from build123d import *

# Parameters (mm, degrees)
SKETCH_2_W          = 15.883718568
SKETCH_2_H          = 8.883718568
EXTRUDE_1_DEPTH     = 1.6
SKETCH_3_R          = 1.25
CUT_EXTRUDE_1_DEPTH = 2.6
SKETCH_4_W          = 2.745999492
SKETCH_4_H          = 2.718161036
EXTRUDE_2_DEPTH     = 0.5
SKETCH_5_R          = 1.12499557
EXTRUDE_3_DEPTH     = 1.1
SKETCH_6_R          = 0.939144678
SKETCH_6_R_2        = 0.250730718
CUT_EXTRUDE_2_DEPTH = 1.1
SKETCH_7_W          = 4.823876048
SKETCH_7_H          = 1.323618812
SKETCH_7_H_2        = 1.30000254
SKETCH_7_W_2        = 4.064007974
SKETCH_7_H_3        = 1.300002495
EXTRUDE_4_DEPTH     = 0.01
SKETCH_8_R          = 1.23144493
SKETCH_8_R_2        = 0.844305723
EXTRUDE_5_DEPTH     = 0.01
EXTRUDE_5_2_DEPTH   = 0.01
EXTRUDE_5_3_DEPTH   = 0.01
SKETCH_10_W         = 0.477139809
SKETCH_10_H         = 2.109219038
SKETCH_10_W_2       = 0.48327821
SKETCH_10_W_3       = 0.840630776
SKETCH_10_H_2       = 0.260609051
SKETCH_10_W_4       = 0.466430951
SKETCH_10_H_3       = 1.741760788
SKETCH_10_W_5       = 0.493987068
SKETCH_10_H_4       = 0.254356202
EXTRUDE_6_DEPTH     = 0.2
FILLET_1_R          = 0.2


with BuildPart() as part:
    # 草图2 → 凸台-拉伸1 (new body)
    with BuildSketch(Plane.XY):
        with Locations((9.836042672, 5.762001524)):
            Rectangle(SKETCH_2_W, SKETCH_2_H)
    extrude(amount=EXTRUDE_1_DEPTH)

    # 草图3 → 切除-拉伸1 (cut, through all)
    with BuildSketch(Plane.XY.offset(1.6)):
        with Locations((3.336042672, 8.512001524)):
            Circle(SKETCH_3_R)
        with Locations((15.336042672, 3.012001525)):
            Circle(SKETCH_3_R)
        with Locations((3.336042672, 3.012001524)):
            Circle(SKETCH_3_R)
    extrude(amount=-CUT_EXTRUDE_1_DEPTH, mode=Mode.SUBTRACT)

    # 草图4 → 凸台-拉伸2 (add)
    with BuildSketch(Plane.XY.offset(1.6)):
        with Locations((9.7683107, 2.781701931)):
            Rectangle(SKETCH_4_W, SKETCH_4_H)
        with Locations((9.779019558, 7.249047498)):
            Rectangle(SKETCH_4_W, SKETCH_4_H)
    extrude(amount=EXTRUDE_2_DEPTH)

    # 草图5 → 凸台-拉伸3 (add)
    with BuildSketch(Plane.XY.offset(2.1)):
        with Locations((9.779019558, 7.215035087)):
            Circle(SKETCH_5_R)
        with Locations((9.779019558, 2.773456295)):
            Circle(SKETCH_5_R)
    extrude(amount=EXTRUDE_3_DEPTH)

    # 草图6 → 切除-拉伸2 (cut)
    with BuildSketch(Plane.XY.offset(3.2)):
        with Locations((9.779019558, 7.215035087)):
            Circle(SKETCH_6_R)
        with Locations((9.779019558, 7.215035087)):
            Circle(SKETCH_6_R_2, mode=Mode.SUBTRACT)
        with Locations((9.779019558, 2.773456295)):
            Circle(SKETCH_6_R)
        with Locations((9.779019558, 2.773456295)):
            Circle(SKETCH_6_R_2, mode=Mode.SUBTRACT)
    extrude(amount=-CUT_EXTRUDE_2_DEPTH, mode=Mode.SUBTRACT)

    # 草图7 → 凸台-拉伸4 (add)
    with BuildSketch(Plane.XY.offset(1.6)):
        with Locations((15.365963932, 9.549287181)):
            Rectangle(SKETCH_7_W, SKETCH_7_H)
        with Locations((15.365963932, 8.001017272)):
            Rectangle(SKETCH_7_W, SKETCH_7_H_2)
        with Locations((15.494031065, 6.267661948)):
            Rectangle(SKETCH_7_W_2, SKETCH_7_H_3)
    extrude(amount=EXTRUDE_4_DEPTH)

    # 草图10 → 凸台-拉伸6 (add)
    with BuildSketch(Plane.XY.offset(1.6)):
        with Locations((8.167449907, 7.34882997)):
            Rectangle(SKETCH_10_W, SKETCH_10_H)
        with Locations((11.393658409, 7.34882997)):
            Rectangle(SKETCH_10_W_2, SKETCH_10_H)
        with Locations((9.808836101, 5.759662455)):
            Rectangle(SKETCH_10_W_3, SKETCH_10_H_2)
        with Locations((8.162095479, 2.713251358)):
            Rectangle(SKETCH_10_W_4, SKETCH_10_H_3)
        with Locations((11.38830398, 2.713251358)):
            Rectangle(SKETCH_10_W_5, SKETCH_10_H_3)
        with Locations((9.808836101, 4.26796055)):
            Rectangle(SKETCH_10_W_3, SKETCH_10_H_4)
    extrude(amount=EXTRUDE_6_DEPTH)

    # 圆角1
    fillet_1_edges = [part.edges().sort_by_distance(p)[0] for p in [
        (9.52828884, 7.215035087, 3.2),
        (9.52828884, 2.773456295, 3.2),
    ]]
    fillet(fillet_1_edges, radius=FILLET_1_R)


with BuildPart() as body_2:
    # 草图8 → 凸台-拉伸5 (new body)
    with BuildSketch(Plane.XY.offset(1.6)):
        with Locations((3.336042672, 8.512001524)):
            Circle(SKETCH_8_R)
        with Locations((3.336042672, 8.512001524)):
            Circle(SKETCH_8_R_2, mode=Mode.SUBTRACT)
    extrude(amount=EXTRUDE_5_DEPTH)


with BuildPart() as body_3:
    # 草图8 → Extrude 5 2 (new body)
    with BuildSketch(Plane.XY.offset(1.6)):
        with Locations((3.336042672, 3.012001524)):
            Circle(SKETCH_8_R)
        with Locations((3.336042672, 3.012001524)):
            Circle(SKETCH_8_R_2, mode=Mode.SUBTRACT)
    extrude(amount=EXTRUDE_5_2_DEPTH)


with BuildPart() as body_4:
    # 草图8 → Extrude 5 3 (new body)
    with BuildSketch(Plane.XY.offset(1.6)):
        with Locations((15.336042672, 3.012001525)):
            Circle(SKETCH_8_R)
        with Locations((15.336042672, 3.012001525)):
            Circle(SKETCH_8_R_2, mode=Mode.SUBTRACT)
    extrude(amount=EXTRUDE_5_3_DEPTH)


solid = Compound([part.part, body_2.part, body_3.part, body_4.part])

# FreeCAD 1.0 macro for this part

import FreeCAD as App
import Part
import Sketcher
from FreeCAD import Vector
Q = App.Units.Quantity


def edges_at(feature, points):
    """Names of the edges that pass closest to the given points."""
    edges = feature.Shape.Edges
    near = lambda p: min(range(len(edges)), key=lambda i: edges[i].distToShape(Part.Vertex(*p))[0])
    return sorted({f"Edge{near(p) + 1}" for p in points})

doc = App.newDocument("Part")
params = doc.addObject("Spreadsheet::Sheet", "Params")
for row, (alias, value) in enumerate([
    ("pad1_length", "1.6 mm"),
    ("sketch2_diameter", "2.5 mm"),
    ("pad2_length", "0.5 mm"),
    ("pad3_length", "1.1 mm"),
    ("pocket2_length", "1.1 mm"),
    ("pad4_length", "0.01 mm"),
    ("pad5_length", "0.2 mm"),
    ("fillet_radius", "0.2 mm"),
    ("pad6_length", "0.01 mm"),
    ("pad7_length", "0.01 mm"),
    ("pad8_length", "0.01 mm"),
], start=1):
    params.set(f"A{row}", alias)
    params.set(f"B{row}", "=" + value)
    params.setAlias(f"B{row}", alias)

body = doc.addObject("PartDesign::Body", "Body")

# Sketch on XY plane
sketch1 = doc.addObject("Sketcher::SketchObject", "Sketch")
body.addObject(sketch1)
sketch1.AttachmentSupport = (doc.XY_Plane, [""])
sketch1.MapMode = "FlatFace"
sketch1.addGeometry([
    Part.LineSegment(Vector(2, 10, 0), Vector(2, 1, 0)),
    Part.LineSegment(Vector(2, 1, 0), Vector(18, 1, 0)),
    Part.LineSegment(Vector(18, 1, 0), Vector(18, 10, 0)),
    Part.LineSegment(Vector(18, 10, 0), Vector(2, 10, 0)),
], False)
sketch1.addConstraint([
    Sketcher.Constraint("Coincident", 0, 2, 1, 1),
    Sketcher.Constraint("Coincident", 1, 2, 2, 1),
    Sketcher.Constraint("Coincident", 2, 2, 3, 1),
    Sketcher.Constraint("Coincident", 3, 2, 0, 1),
    Sketcher.Constraint("Vertical", 0),
    Sketcher.Constraint("Horizontal", 1),
    Sketcher.Constraint("Vertical", 2),
    Sketcher.Constraint("Horizontal", 3),
    Sketcher.Constraint("DistanceX", 1, 1, 1, 2, Q("15.883719 mm")),
    Sketcher.Constraint("DistanceY", 0, 2, 0, 1, Q("8.883719 mm")),
    Sketcher.Constraint("DistanceX", -1, 1, 1, 2, Q("17.777902 mm")),
    Sketcher.Constraint("DistanceY", -1, 1, 2, 2, Q("10.203861 mm")),
])
pad1 = doc.addObject("PartDesign::Pad", "Pad")
body.addObject(pad1)
pad1.Profile = sketch1
pad1.setExpression("Length", "Params.pad1_length")

# Sketch on XY plane
sketch2 = doc.addObject("Sketcher::SketchObject", "Sketch001")
body.addObject(sketch2)
sketch2.AttachmentSupport = (doc.XY_Plane, [""])
sketch2.MapMode = "FlatFace"
sketch2.AttachmentOffset = App.Placement(Vector(0, 0, 1.6), App.Rotation())
sketch2.addGeometry([
    Part.Circle(Vector(3.3, 8.5, 0), Vector(0, 0, 1), 1.2),
    Part.Circle(Vector(15.3, 3, 0), Vector(0, 0, 1), 1.2),
    Part.Circle(Vector(3.3, 3, 0), Vector(0, 0, 1), 1.2),
], False)
sketch2.addConstraint([
    Sketcher.Constraint("Equal", 0, 1),
    Sketcher.Constraint("Equal", 1, 2),
    Sketcher.Constraint("Horizontal", 1, 3, 2, 3),
    Sketcher.Constraint("Vertical", 0, 3, 2, 3),
    Sketcher.Constraint("Diameter", 0, Q("2.5 mm")),
    Sketcher.Constraint("DistanceX", 0, 3, 1, 3, Q("12 mm")),
    Sketcher.Constraint("DistanceY", 1, 3, 0, 3, Q("5.5 mm")),
    Sketcher.Constraint("DistanceY", -1, 1, 0, 3, Q("8.512002 mm")),
    Sketcher.Constraint("DistanceX", -1, 1, 0, 3, Q("3.336043 mm")),
])
sketch2.setExpression("Constraints[4]", "Params.sketch2_diameter")
pocket1 = doc.addObject("PartDesign::Pocket", "Pocket")
body.addObject(pocket1)
pocket1.Profile = sketch2
pocket1.Type = "ThroughAll"

# Sketch on XY plane
sketch3 = doc.addObject("Sketcher::SketchObject", "Sketch002")
body.addObject(sketch3)
sketch3.AttachmentSupport = (doc.XY_Plane, [""])
sketch3.MapMode = "FlatFace"
sketch3.AttachmentOffset = App.Placement(Vector(0, 0, 1.6), App.Rotation())
sketch3.addGeometry([
    Part.LineSegment(Vector(8.4, 4.1, 0), Vector(8.4, 1.4, 0)),  # 0
    Part.LineSegment(Vector(8.4, 1.4, 0), Vector(11.1, 1.4, 0)),  # 1
    Part.LineSegment(Vector(11.1, 1.4, 0), Vector(11.1, 4.1, 0)),  # 2
    Part.LineSegment(Vector(11.1, 4.1, 0), Vector(8.4, 4.1, 0)),  # 3
    Part.LineSegment(Vector(8.4, 8.6, 0), Vector(8.4, 5.9, 0)),  # 4
    Part.LineSegment(Vector(8.4, 5.9, 0), Vector(11.2, 5.9, 0)),  # 5
    Part.LineSegment(Vector(11.2, 5.9, 0), Vector(11.2, 8.6, 0)),  # 6
    Part.LineSegment(Vector(11.2, 8.6, 0), Vector(8.4, 8.6, 0)),  # 7
], False)
sketch3.addConstraint([
    Sketcher.Constraint("Coincident", 0, 2, 1, 1),
    Sketcher.Constraint("Coincident", 1, 2, 2, 1),
    Sketcher.Constraint("Coincident", 2, 2, 3, 1),
    Sketcher.Constraint("Coincident", 3, 2, 0, 1),
    Sketcher.Constraint("Coincident", 4, 2, 5, 1),
    Sketcher.Constraint("Coincident", 5, 2, 6, 1),
    Sketcher.Constraint("Coincident", 6, 2, 7, 1),
    Sketcher.Constraint("Coincident", 7, 2, 4, 1),
    Sketcher.Constraint("Vertical", 0),
    Sketcher.Constraint("Horizontal", 1),
    Sketcher.Constraint("Vertical", 2),
    Sketcher.Constraint("Horizontal", 3),
    Sketcher.Constraint("Vertical", 4),
    Sketcher.Constraint("Horizontal", 5),
    Sketcher.Constraint("Vertical", 6),
    Sketcher.Constraint("Horizontal", 7),
    Sketcher.Constraint("Equal", 3, 5),
    Sketcher.Constraint("Equal", 2, 4),
    Sketcher.Constraint("DistanceX", 1, 1, 1, 2, Q("2.745999 mm")),
    Sketcher.Constraint("DistanceY", 0, 2, 0, 1, Q("2.718161 mm")),
    Sketcher.Constraint("DistanceX", -1, 1, 0, 2, Q("8.395311 mm")),
    Sketcher.Constraint("DistanceY", -1, 1, 0, 2, Q("1.422621 mm")),
    Sketcher.Constraint("DistanceX", -1, 1, 4, 2, Q("8.40602 mm")),
    Sketcher.Constraint("DistanceY", -1, 1, 6, 2, Q("8.608128 mm")),
])
pad2 = doc.addObject("PartDesign::Pad", "Pad001")
body.addObject(pad2)
pad2.Profile = sketch3
pad2.setExpression("Length", "Params.pad2_length")

# Sketch on XY plane
sketch4 = doc.addObject("Sketcher::SketchObject", "Sketch003")
body.addObject(sketch4)
sketch4.AttachmentSupport = (doc.XY_Plane, [""])
sketch4.MapMode = "FlatFace"
sketch4.AttachmentOffset = App.Placement(Vector(0, 0, 2.1), App.Rotation())
sketch4.addGeometry([
    Part.Circle(Vector(9.8, 7.2, 0), Vector(0, 0, 1), 1.1),
    Part.Circle(Vector(9.8, 2.8, 0), Vector(0, 0, 1), 1.1),
], False)
sketch4.addConstraint([
    Sketcher.Constraint("Equal", 0, 1),
    Sketcher.Constraint("Vertical", 0, 3, 1, 3),
    Sketcher.Constraint("Diameter", 0, Q("2.249991 mm")),
    Sketcher.Constraint("DistanceX", -1, 1, 0, 3, Q("9.77902 mm")),
    Sketcher.Constraint("DistanceY", 1, 3, 0, 3, Q("4.441579 mm")),
    Sketcher.Constraint("DistanceY", -1, 1, 0, 3, Q("7.215035 mm")),
])
pad3 = doc.addObject("PartDesign::Pad", "Pad002")
body.addObject(pad3)
pad3.Profile = sketch4
pad3.setExpression("Length", "Params.pad3_length")

# Sketch on XY plane
sketch5 = doc.addObject("Sketcher::SketchObject", "Sketch004")
body.addObject(sketch5)
sketch5.AttachmentSupport = (doc.XY_Plane, [""])
sketch5.MapMode = "FlatFace"
sketch5.AttachmentOffset = App.Placement(Vector(0, 0, 3.2), App.Rotation())
sketch5.addGeometry([
    Part.Circle(Vector(9.78, 7.22, 0), Vector(0, 0, 1), 0.94),
    Part.Circle(Vector(9.78, 7.22, 0), Vector(0, 0, 1), 0.25),
    Part.Circle(Vector(9.78, 2.77, 0), Vector(0, 0, 1), 0.94),
    Part.Circle(Vector(9.78, 2.77, 0), Vector(0, 0, 1), 0.25),
], False)
sketch5.addConstraint([
    Sketcher.Constraint("Coincident", 1, 3, 0, 3),
    Sketcher.Constraint("Coincident", 3, 3, 2, 3),
    Sketcher.Constraint("Equal", 0, 2),
    Sketcher.Constraint("Equal", 1, 3),
    Sketcher.Constraint("Vertical", 1, 3, 2, 3),
    Sketcher.Constraint("Diameter", 0, Q("1.878289 mm")),
    Sketcher.Constraint("Diameter", 1, Q("0.501461 mm")),
    Sketcher.Constraint("DistanceX", -1, 1, 0, 3, Q("9.77902 mm")),
    Sketcher.Constraint("DistanceY", 2, 3, 0, 3, Q("4.441579 mm")),
    Sketcher.Constraint("DistanceY", -1, 1, 0, 3, Q("7.215035 mm")),
])
pocket2 = doc.addObject("PartDesign::Pocket", "Pocket001")
body.addObject(pocket2)
pocket2.Profile = sketch5
pocket2.setExpression("Length", "Params.pocket2_length")

# Sketch on XY plane
sketch6 = doc.addObject("Sketcher::SketchObject", "Sketch005")
body.addObject(sketch6)
sketch6.AttachmentSupport = (doc.XY_Plane, [""])
sketch6.MapMode = "FlatFace"
sketch6.AttachmentOffset = App.Placement(Vector(0, 0, 1.6), App.Rotation())
sketch6.addGeometry([
    Part.LineSegment(Vector(13, 10.2, 0), Vector(13, 8.9, 0)),  # 0
    Part.LineSegment(Vector(13, 8.9, 0), Vector(17.8, 8.9, 0)),  # 1
    Part.LineSegment(Vector(17.8, 8.9, 0), Vector(17.8, 10.2, 0)),  # 2
    Part.LineSegment(Vector(17.8, 10.2, 0), Vector(13, 10.2, 0)),  # 3
    Part.LineSegment(Vector(13, 8.7, 0), Vector(13, 7.4, 0)),  # 4
    Part.LineSegment(Vector(13, 7.4, 0), Vector(17.8, 7.4, 0)),  # 5
    Part.LineSegment(Vector(17.8, 7.4, 0), Vector(17.8, 8.7, 0)),  # 6
    Part.LineSegment(Vector(17.8, 8.7, 0), Vector(13, 8.7, 0)),  # 7
    Part.LineSegment(Vector(13.5, 6.9, 0), Vector(13.5, 5.6, 0)),  # 8
    Part.LineSegment(Vector(13.5, 5.6, 0), Vector(17.5, 5.6, 0)),  # 9
    Part.LineSegment(Vector(17.5, 5.6, 0), Vector(17.5, 6.9, 0)),  # 10
    Part.LineSegment(Vector(17.5, 6.9, 0), Vector(13.5, 6.9, 0)),  # 11
], False)
sketch6.addConstraint([
    Sketcher.Constraint("Coincident", 0, 2, 1, 1),
    Sketcher.Constraint("Coincident", 1, 2, 2, 1),
    Sketcher.Constraint("Coincident", 2, 2, 3, 1),
    Sketcher.Constraint("Coincident", 3, 2, 0, 1),
    Sketcher.Constraint("Coincident", 4, 2, 5, 1),
    Sketcher.Constraint("Coincident", 5, 2, 6, 1),
    Sketcher.Constraint("Coincident", 6, 2, 7, 1),
    Sketcher.Constraint("Coincident", 7, 2, 4, 1),
    Sketcher.Constraint("Coincident", 8, 2, 9, 1),
    Sketcher.Constraint("Coincident", 9, 2, 10, 1),
    Sketcher.Constraint("Coincident", 10, 2, 11, 1),
    Sketcher.Constraint("Coincident", 11, 2, 8, 1),
    Sketcher.Constraint("Vertical", 0),
    Sketcher.Constraint("Horizontal", 1),
    Sketcher.Constraint("Vertical", 2),
    Sketcher.Constraint("Horizontal", 3),
    Sketcher.Constraint("Vertical", 4),
    Sketcher.Constraint("Horizontal", 5),
    Sketcher.Constraint("Vertical", 6),
    Sketcher.Constraint("Horizontal", 7),
    Sketcher.Constraint("Vertical", 8),
    Sketcher.Constraint("Horizontal", 9),
    Sketcher.Constraint("Vertical", 10),
    Sketcher.Constraint("Horizontal", 11),
    Sketcher.Constraint("Vertical", 3, 2, 4, 2),
    Sketcher.Constraint("Vertical", 2, 2, 5, 2),
    Sketcher.Constraint("Equal", 6, 8),
    Sketcher.Constraint("DistanceX", 4, 2, 8, 2, Q("0.508001 mm")),
    Sketcher.Constraint("DistanceY", 0, 2, 0, 1, Q("1.323619 mm")),
    Sketcher.Constraint("DistanceX", -1, 1, 1, 2, Q("17.777902 mm")),
    Sketcher.Constraint("DistanceX", 1, 1, 1, 2, Q("4.823876 mm")),
    Sketcher.Constraint("DistanceX", 9, 1, 9, 2, Q("4.064008 mm")),
    Sketcher.Constraint("DistanceY", 4, 2, 4, 1, Q("1.300003 mm")),
    Sketcher.Constraint("DistanceY", -1, 1, 6, 2, Q("8.651019 mm")),
    Sketcher.Constraint("DistanceY", -1, 1, 8, 2, Q("5.617661 mm")),
    Sketcher.Constraint("DistanceY", 4, 2, 0, 2, Q("1.536462 mm")),
])
pad4 = doc.addObject("PartDesign::Pad", "Pad003")
body.addObject(pad4)
pad4.Profile = sketch6
pad4.setExpression("Length", "Params.pad4_length")

# Sketch on XY plane
sketch7 = doc.addObject("Sketcher::SketchObject", "Sketch006")
body.addObject(sketch7)
sketch7.AttachmentSupport = (doc.XY_Plane, [""])
sketch7.MapMode = "FlatFace"
sketch7.AttachmentOffset = App.Placement(Vector(0, 0, 1.6), App.Rotation())
sketch7.addGeometry([
    Part.LineSegment(Vector(7.93, 8.4, 0), Vector(7.93, 6.29, 0)),  # 0
    Part.LineSegment(Vector(7.93, 6.29, 0), Vector(8.41, 6.29, 0)),  # 1
    Part.LineSegment(Vector(8.41, 6.29, 0), Vector(8.41, 8.4, 0)),  # 2
    Part.LineSegment(Vector(8.41, 8.4, 0), Vector(7.93, 8.4, 0)),  # 3
    Part.LineSegment(Vector(11.15, 8.4, 0), Vector(11.15, 6.29, 0)),  # 4
    Part.LineSegment(Vector(11.15, 6.29, 0), Vector(11.64, 6.29, 0)),  # 5
    Part.LineSegment(Vector(11.64, 6.29, 0), Vector(11.64, 8.4, 0)),  # 6
    Part.LineSegment(Vector(11.64, 8.4, 0), Vector(11.15, 8.4, 0)),  # 7
    Part.LineSegment(Vector(9.39, 5.89, 0), Vector(9.39, 5.63, 0)),  # 8
    Part.LineSegment(Vector(9.39, 5.63, 0), Vector(10.23, 5.63, 0)),  # 9
    Part.LineSegment(Vector(10.23, 5.63, 0), Vector(10.23, 5.89, 0)),  # 10
    Part.LineSegment(Vector(10.23, 5.89, 0), Vector(9.39, 5.89, 0)),  # 11
    Part.LineSegment(Vector(7.93, 3.58, 0), Vector(7.93, 1.84, 0)),  # 12
    Part.LineSegment(Vector(7.93, 1.84, 0), Vector(8.4, 1.84, 0)),  # 13
    Part.LineSegment(Vector(8.4, 1.84, 0), Vector(8.4, 3.58, 0)),  # 14
    Part.LineSegment(Vector(8.4, 3.58, 0), Vector(7.93, 3.58, 0)),  # 15
    Part.LineSegment(Vector(11.14, 3.58, 0), Vector(11.14, 1.84, 0)),  # 16
    Part.LineSegment(Vector(11.14, 1.84, 0), Vector(11.64, 1.84, 0)),  # 17
    Part.LineSegment(Vector(11.64, 1.84, 0), Vector(11.64, 3.58, 0)),  # 18
    Part.LineSegment(Vector(11.64, 3.58, 0), Vector(11.14, 3.58, 0)),  # 19
    Part.LineSegment(Vector(9.39, 4.4, 0), Vector(9.39, 4.14, 0)),  # 20
    Part.LineSegment(Vector(9.39, 4.14, 0), Vector(10.23, 4.14, 0)),  # 21
    Part.LineSegment(Vector(10.23, 4.14, 0), Vector(10.23, 4.4, 0)),  # 22
    Part.LineSegment(Vector(10.23, 4.4, 0), Vector(9.39, 4.4, 0)),  # 23
], False)
sketch7.addConstraint([
    Sketcher.Constraint("Coincident", 0, 2, 1, 1),
    Sketcher.Constraint("Coincident", 1, 2, 2, 1),
    Sketcher.Constraint("Coincident", 2, 2, 3, 1),
    Sketcher.Constraint("Coincident", 3, 2, 0, 1),
    Sketcher.Constraint("Coincident", 4, 2, 5, 1),
    Sketcher.Constraint("Coincident", 5, 2, 6, 1),
    Sketcher.Constraint("Coincident", 6, 2, 7, 1),
    Sketcher.Constraint("Coincident", 7, 2, 4, 1),
    Sketcher.Constraint("Coincident", 8, 2, 9, 1),
    Sketcher.Constraint("Coincident", 9, 2, 10, 1),
    Sketcher.Constraint("Coincident", 10, 2, 11, 1),
    Sketcher.Constraint("Coincident", 11, 2, 8, 1),
    Sketcher.Constraint("Coincident", 12, 2, 13, 1),
    Sketcher.Constraint("Coincident", 13, 2, 14, 1),
    Sketcher.Constraint("Coincident", 14, 2, 15, 1),
    Sketcher.Constraint("Coincident", 15, 2, 12, 1),
    Sketcher.Constraint("Coincident", 16, 2, 17, 1),
    Sketcher.Constraint("Coincident", 17, 2, 18, 1),
    Sketcher.Constraint("Coincident", 18, 2, 19, 1),
    Sketcher.Constraint("Coincident", 19, 2, 16, 1),
    Sketcher.Constraint("Coincident", 20, 2, 21, 1),
    Sketcher.Constraint("Coincident", 21, 2, 22, 1),
    Sketcher.Constraint("Coincident", 22, 2, 23, 1),
    Sketcher.Constraint("Coincident", 23, 2, 20, 1),
    Sketcher.Constraint("Vertical", 0),
    Sketcher.Constraint("Horizontal", 1),
    Sketcher.Constraint("Vertical", 2),
    Sketcher.Constraint("Horizontal", 3),
    Sketcher.Constraint("Vertical", 4),
    Sketcher.Constraint("Horizontal", 5),
    Sketcher.Constraint("Vertical", 6),
    Sketcher.Constraint("Horizontal", 7),
    Sketcher.Constraint("Vertical", 8),
    Sketcher.Constraint("Horizontal", 9),
    Sketcher.Constraint("Vertical", 10),
    Sketcher.Constraint("Horizontal", 11),
    Sketcher.Constraint("Vertical", 12),
    Sketcher.Constraint("Horizontal", 13),
    Sketcher.Constraint("Vertical", 14),
    Sketcher.Constraint("Horizontal", 15),
    Sketcher.Constraint("Vertical", 16),
    Sketcher.Constraint("Horizontal", 17),
    Sketcher.Constraint("Vertical", 18),
    Sketcher.Constraint("Horizontal", 19),
    Sketcher.Constraint("Vertical", 20),
    Sketcher.Constraint("Horizontal", 21),
    Sketcher.Constraint("Vertical", 22),
    Sketcher.Constraint("Horizontal", 23),
    Sketcher.Constraint("Horizontal", 1, 2, 4, 2),
    Sketcher.Constraint("Horizontal", 3, 2, 6, 2),
    Sketcher.Constraint("Horizontal", 13, 2, 16, 2),
    Sketcher.Constraint("Horizontal", 15, 2, 18, 2),
    Sketcher.Constraint("Vertical", 3, 2, 12, 2),
    Sketcher.Constraint("Vertical", 6, 2, 17, 2),
    Sketcher.Constraint("Vertical", 11, 2, 20, 2),
    Sketcher.Constraint("Vertical", 10, 2, 21, 2),
    Sketcher.Constraint("DistanceX", 1, 2, 4, 2, Q("2.745999 mm")),
    Sketcher.Constraint("DistanceX", 13, 2, 16, 2, Q("2.745999 mm")),
    Sketcher.Constraint("DistanceX", 1, 1, 1, 2, Q("0.47714 mm")),
    Sketcher.Constraint("DistanceX", 5, 1, 5, 2, Q("0.483278 mm")),
    Sketcher.Constraint("DistanceX", 9, 1, 9, 2, Q("0.840631 mm")),
    Sketcher.Constraint("DistanceX", 13, 1, 13, 2, Q("0.466431 mm")),
    Sketcher.Constraint("DistanceY", 0, 2, 0, 1, Q("2.109219 mm")),
    Sketcher.Constraint("DistanceY", 8, 2, 8, 1, Q("0.260609 mm")),
    Sketcher.Constraint("DistanceY", 12, 2, 12, 1, Q("1.741761 mm")),
    Sketcher.Constraint("DistanceX", 1, 2, 8, 2, Q("0.982501 mm")),
    Sketcher.Constraint("DistanceY", 20, 2, 20, 1, Q("0.254356 mm")),
    Sketcher.Constraint("DistanceX", -1, 1, 0, 2, Q("7.92888 mm")),
    Sketcher.Constraint("DistanceY", -1, 1, 0, 2, Q("6.29422 mm")),
    Sketcher.Constraint("DistanceY", -1, 1, 12, 2, Q("1.842371 mm")),
    Sketcher.Constraint("DistanceY", -1, 1, 22, 2, Q("4.395139 mm")),
    Sketcher.Constraint("DistanceY", 8, 2, 2, 2, Q("2.774082 mm")),
])
pad5 = doc.addObject("PartDesign::Pad", "Pad004")
body.addObject(pad5)
pad5.Profile = sketch7
pad5.setExpression("Length", "Params.pad5_length")
doc.recompute()

fillet = doc.addObject("PartDesign::Fillet", "Fillet")
body.addObject(fillet)
fillet.Base = (pad5, edges_at(pad5, [(9.528, 7.215, 3.2), (9.528, 2.773, 3.2)]))
fillet.setExpression("Radius", "Params.fillet_radius")
body2 = doc.addObject("PartDesign::Body", "Body001")

# Sketch on XY plane
sketch8 = doc.addObject("Sketcher::SketchObject", "Sketch007")
body2.addObject(sketch8)
sketch8.AttachmentSupport = (doc.getObject("XY_Plane001"), [""])
sketch8.MapMode = "FlatFace"
sketch8.AttachmentOffset = App.Placement(Vector(0, 0, 1.6), App.Rotation())
sketch8.addGeometry([
    Part.Circle(Vector(3.3, 8.5, 0), Vector(0, 0, 1), 1.2),
    Part.Circle(Vector(3.3, 8.5, 0), Vector(0, 0, 1), 0.8),
], False)
sketch8.addConstraint([
    Sketcher.Constraint("Coincident", 1, 3, 0, 3),
    Sketcher.Constraint("Diameter", 0, Q("2.46289 mm")),
    Sketcher.Constraint("Diameter", 1, Q("1.688611 mm")),
    Sketcher.Constraint("DistanceY", -1, 1, 0, 3, Q("8.512002 mm")),
    Sketcher.Constraint("DistanceX", -1, 1, 0, 3, Q("3.336043 mm")),
])
pad6 = doc.addObject("PartDesign::Pad", "Pad005")
body2.addObject(pad6)
pad6.Profile = sketch8
pad6.setExpression("Length", "Params.pad6_length")
body3 = doc.addObject("PartDesign::Body", "Body002")

# Sketch on XY plane
sketch9 = doc.addObject("Sketcher::SketchObject", "Sketch008")
body3.addObject(sketch9)
sketch9.AttachmentSupport = (doc.getObject("XY_Plane002"), [""])
sketch9.MapMode = "FlatFace"
sketch9.AttachmentOffset = App.Placement(Vector(0, 0, 1.6), App.Rotation())
sketch9.addGeometry([
    Part.Circle(Vector(3.3, 3, 0), Vector(0, 0, 1), 1.2),
    Part.Circle(Vector(3.3, 3, 0), Vector(0, 0, 1), 0.8),
], False)
sketch9.addConstraint([
    Sketcher.Constraint("Coincident", 1, 3, 0, 3),
    Sketcher.Constraint("Diameter", 0, Q("2.46289 mm")),
    Sketcher.Constraint("Diameter", 1, Q("1.688611 mm")),
    Sketcher.Constraint("DistanceY", -1, 1, 0, 3, Q("3.012002 mm")),
    Sketcher.Constraint("DistanceX", -1, 1, 0, 3, Q("3.336043 mm")),
])
pad7 = doc.addObject("PartDesign::Pad", "Pad006")
body3.addObject(pad7)
pad7.Profile = sketch9
pad7.setExpression("Length", "Params.pad7_length")
body4 = doc.addObject("PartDesign::Body", "Body003")

# Sketch on XY plane
sketch10 = doc.addObject("Sketcher::SketchObject", "Sketch009")
body4.addObject(sketch10)
sketch10.AttachmentSupport = (doc.getObject("XY_Plane003"), [""])
sketch10.MapMode = "FlatFace"
sketch10.AttachmentOffset = App.Placement(Vector(0, 0, 1.6), App.Rotation())
sketch10.addGeometry([
    Part.Circle(Vector(15.3, 3, 0), Vector(0, 0, 1), 1.2),
    Part.Circle(Vector(15.3, 3, 0), Vector(0, 0, 1), 0.8),
], False)
sketch10.addConstraint([
    Sketcher.Constraint("Coincident", 1, 3, 0, 3),
    Sketcher.Constraint("Diameter", 0, Q("2.46289 mm")),
    Sketcher.Constraint("Diameter", 1, Q("1.688611 mm")),
    Sketcher.Constraint("DistanceY", -1, 1, 0, 3, Q("3.012002 mm")),
    Sketcher.Constraint("DistanceX", -1, 1, 0, 3, Q("15.336043 mm")),
])
pad8 = doc.addObject("PartDesign::Pad", "Pad007")
body4.addObject(pad8)
pad8.Profile = sketch10
pad8.setExpression("Length", "Params.pad8_length")

doc.recompute()
